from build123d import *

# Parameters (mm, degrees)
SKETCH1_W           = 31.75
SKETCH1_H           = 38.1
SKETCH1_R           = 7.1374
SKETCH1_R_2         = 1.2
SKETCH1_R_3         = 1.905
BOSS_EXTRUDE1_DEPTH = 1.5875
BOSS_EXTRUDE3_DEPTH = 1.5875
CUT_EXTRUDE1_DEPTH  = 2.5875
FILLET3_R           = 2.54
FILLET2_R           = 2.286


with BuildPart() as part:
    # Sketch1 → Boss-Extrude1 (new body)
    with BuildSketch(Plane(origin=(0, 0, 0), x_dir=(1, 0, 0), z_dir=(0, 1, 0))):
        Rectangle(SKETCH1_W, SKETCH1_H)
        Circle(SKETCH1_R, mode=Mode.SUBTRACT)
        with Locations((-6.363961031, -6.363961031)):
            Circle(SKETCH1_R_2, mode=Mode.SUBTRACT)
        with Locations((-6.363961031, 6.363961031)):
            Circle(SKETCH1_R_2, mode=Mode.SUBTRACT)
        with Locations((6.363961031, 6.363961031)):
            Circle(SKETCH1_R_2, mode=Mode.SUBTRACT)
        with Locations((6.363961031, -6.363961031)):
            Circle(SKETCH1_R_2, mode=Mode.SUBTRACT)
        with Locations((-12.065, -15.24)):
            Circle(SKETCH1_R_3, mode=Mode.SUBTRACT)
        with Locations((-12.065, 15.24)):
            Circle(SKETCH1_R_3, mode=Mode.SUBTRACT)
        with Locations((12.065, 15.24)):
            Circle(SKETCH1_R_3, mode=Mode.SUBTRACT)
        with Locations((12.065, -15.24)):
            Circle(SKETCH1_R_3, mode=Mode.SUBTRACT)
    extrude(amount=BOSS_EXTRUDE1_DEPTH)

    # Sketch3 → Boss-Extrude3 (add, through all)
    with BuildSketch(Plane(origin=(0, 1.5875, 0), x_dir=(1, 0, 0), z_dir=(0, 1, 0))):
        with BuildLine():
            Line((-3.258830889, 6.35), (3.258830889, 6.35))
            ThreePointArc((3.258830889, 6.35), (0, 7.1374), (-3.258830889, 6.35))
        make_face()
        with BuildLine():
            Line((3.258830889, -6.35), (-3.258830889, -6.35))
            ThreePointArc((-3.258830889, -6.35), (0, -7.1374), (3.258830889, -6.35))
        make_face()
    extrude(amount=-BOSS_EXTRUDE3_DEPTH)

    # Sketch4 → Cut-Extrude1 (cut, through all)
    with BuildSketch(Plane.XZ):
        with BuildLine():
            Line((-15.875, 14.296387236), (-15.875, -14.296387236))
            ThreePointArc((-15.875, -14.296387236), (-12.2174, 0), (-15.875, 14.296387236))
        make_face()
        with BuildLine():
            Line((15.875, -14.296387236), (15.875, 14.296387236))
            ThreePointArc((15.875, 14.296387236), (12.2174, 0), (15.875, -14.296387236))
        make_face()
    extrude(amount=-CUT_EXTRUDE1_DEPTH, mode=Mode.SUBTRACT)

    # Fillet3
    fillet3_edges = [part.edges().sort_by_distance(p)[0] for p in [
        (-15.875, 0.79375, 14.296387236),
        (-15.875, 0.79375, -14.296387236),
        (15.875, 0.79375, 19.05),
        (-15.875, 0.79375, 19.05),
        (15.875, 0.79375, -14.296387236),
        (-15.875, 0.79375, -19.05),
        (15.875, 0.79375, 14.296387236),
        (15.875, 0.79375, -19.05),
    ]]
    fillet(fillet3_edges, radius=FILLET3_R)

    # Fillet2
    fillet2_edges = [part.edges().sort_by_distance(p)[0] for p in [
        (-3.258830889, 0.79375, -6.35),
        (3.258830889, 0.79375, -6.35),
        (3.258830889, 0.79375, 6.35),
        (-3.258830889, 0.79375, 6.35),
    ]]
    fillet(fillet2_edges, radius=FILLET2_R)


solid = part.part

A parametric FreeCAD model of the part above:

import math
import FreeCAD as App
import Part
import Sketcher
from FreeCAD import Vector
Q = App.Units.Quantity


def edges_at(feature, points):
    """Names of the edges that pass closest to the given points."""
    edges = feature.Shape.Edges
    near = lambda p: min(range(len(edges)), key=lambda i: edges[i].distToShape(Part.Vertex(*p))[0])
    return sorted({f"Edge{near(p) + 1}" for p in points})


def add_polygon(sketch, points):
    """Adds a closed chain of lines whose ends are joined by coincident constraints."""
    first, n = sketch.GeometryCount, len(points)
    for a, b in zip(points, points[1:] + points[:1]):
        sketch.addGeometry(Part.LineSegment(App.Vector(*a, 0), App.Vector(*b, 0)), False)
    for i in range(n):
        sketch.addConstraint(Sketcher.Constraint("Coincident", first + i, 2, first + (i + 1) % n, 1))

doc = App.newDocument("Part")
params = doc.addObject("Spreadsheet::Sheet", "Params")
for row, (alias, value) in enumerate([
    ("sketch1_diameter", "0.15 in"),
    ("sketch1_diameter2", "0.562 in"),
    ("sketch1_height", "1.5 in"),
    ("sketch1_width", "1.25 in"),
    ("pad1_length", "0.0625 in"),
    ("sketch2_radius", "0.281 in"),
    ("pad2_length", "0.0625 in"),
    ("sketch3_radius", "1.172 in"),
    ("fillet_radius", "0.1 in"),
    ("fillet2_radius", "0.09 in"),
], start=1):
    params.set(f"A{row}", alias)
    params.set(f"B{row}", "=" + value)
    params.setAlias(f"B{row}", alias)

body = doc.addObject("PartDesign::Body", "Body")

sketch1 = body.newObject("Sketcher::SketchObject", "Sketch")
sketch1.AttachmentSupport = (doc.getObject("XZ_Plane"), [""])
sketch1.MapMode = "FlatFace"
add_polygon(sketch1, [(-15.9, -19.1), (-15.9, 19.1), (15.9, 19.1), (15.9, -19.1)])
sketch1.addGeometry(Part.Circle(Vector(-12.1, 15.2, 0), Vector(0, 0, 1), 1.9), False)
sketch1.addGeometry(Part.Circle(Vector(-6.4, 6.4, 0), Vector(0, 0, 1), 1.2), False)
sketch1.addGeometry(Part.Circle(Vector(12.1, 15.2, 0), Vector(0, 0, 1), 1.9), False)
sketch1.addGeometry(Part.Circle(Vector(6.4, 6.4, 0), Vector(0, 0, 1), 1.2), False)
sketch1.addGeometry(Part.Circle(Vector(-6.4, -6.4, 0), Vector(0, 0, 1), 1.2), False)
sketch1.addGeometry(Part.Circle(Vector(-12.1, -15.2, 0), Vector(0, 0, 1), 1.9), False)
sketch1.addGeometry(Part.Circle(Vector(0, 0, 0), Vector(0, 0, 1), 7.1), False)
sketch1.addGeometry(Part.Circle(Vector(6.4, -6.4, 0), Vector(0, 0, 1), 1.2), False)
sketch1.addGeometry(Part.Circle(Vector(12.1, -15.2, 0), Vector(0, 0, 1), 1.9), False)
sketch1.addConstraint([
    Sketcher.Constraint("Vertical", 0),
    Sketcher.Constraint("Horizontal", 1),
    Sketcher.Constraint("Vertical", 2),
    Sketcher.Constraint("Horizontal", 3),
    Sketcher.Constraint("Coincident", 10, 3, -1, 1),
    Sketcher.Constraint("Equal", 4, 6),
    Sketcher.Constraint("Equal", 5, 7),
    Sketcher.Constraint("Equal", 7, 8),
    Sketcher.Constraint("Equal", 6, 9),
    Sketcher.Constraint("Equal", 8, 11),
    Sketcher.Constraint("Equal", 9, 12),
    Sketcher.Constraint("Symmetric", 7, 3, 8, 3, -1, 1),
    Sketcher.Constraint("Symmetric", 6, 3, 9, 3, -1, 1),
    Sketcher.Constraint("Symmetric", 5, 3, 11, 3, -1, 1),
    Sketcher.Constraint("Symmetric", 4, 3, 12, 3, -1, 1),
    Sketcher.Constraint("Symmetric", 0, 2, 2, 2, -1, 1),
    Sketcher.Constraint("Symmetric", 4, 3, 6, 3, -2),
    Sketcher.Constraint("Symmetric", 5, 3, 7, 3, -2),
    Sketcher.Constraint("Diameter", 4, Q("0.15 in")),
    Sketcher.Constraint("Diameter", 10, Q("0.562 in")),
    Sketcher.Constraint("DistanceY", 0, 1, 0, 2, Q("1.5 in")),
    Sketcher.Constraint("DistanceX", 1, 1, 1, 2, Q("1.25 in")),
    Sketcher.Constraint("DistanceY", -1, 1, 4, 3, Q("0.6 in")),
    Sketcher.Constraint("Diameter", 5, Q("2.4 mm")),
    Sketcher.Constraint("DistanceX", 4, 3, 6, 3, Q("0.95 in")),
    Sketcher.Constraint("DistanceX", 5, 3, -1, 1, Q("6.363961 mm")),
    Sketcher.Constraint("DistanceY", -1, 1, 5, 3, Q("6.363961 mm")),
])
sketch1.setExpression("Constraints[22]", "Params.sketch1_diameter")
sketch1.setExpression("Constraints[23]", "Params.sketch1_diameter2")
sketch1.setExpression("Constraints[24]", "Params.sketch1_height")
sketch1.setExpression("Constraints[25]", "Params.sketch1_width")
pad1 = body.newObject("PartDesign::Pad", "Pad")
pad1.Profile = sketch1
pad1.setExpression("Length", "Params.pad1_length")
pad1.Reversed = True

sketch2 = body.newObject("Sketcher::SketchObject", "Sketch001")
sketch2.AttachmentSupport = (doc.getObject("XZ_Plane"), [""])
sketch2.MapMode = "FlatFace"
sketch2.AttachmentOffset = App.Placement(Vector(0, 0, -0.0625 * 25.4), App.Rotation())
sketch2.addGeometry([
    Part.LineSegment(Vector(-3, -6, 0), Vector(3, -6, 0)),
    Part.ArcOfCircle(Part.Circle(Vector(0, 0, 0), Vector(0, 0, 1), 7), math.radians(-117), math.radians(-63)),
    Part.LineSegment(Vector(3, 6, 0), Vector(-3, 6, 0)),
    Part.ArcOfCircle(Part.Circle(Vector(0, 0, 0), Vector(0, 0, 1), 7), math.radians(63), math.radians(117)),
], False)
sketch2.addConstraint([
    Sketcher.Constraint("Coincident", 0, 1, 1, 1),
    Sketcher.Constraint("Coincident", 1, 2, 0, 2),
    Sketcher.Constraint("Coincident", 2, 1, 3, 1),
    Sketcher.Constraint("Coincident", 3, 2, 2, 2),
    Sketcher.Constraint("Horizontal", 0),
    Sketcher.Constraint("Horizontal", 2),
    Sketcher.Constraint("Coincident", 1, 3, -1, 1),
    Sketcher.Constraint("Coincident", 3, 3, -1, 1),
    Sketcher.Constraint("Equal", 1, 3),
    Sketcher.Constraint("Vertical", 1, 2, 2, 1),
    Sketcher.Constraint("Radius", 1, Q("0.281 in")),
    Sketcher.Constraint("DistanceY", 1, 2, 2, 1, Q("0.5 in")),
])
sketch2.setExpression("Constraints[10]", "Params.sketch2_radius")
pad2 = body.newObject("PartDesign::Pad", "Pad001")
pad2.Profile = sketch2
pad2.setExpression("Length", "Params.pad2_length")

sketch3 = body.newObject("Sketcher::SketchObject", "Sketch002")
sketch3.AttachmentSupport = (doc.getObject("XZ_Plane"), [""])
sketch3.MapMode = "FlatFace"
sketch3.addGeometry([
    Part.LineSegment(Vector(-16, 14, 0), Vector(-16, -14, 0)),
    Part.ArcOfCircle(Part.Circle(Vector(-42, 0, 0), Vector(0, 0, 1), 30), math.radians(-29), math.radians(29)),
    Part.LineSegment(Vector(16, -14, 0), Vector(16, 14, 0)),
    Part.ArcOfCircle(Part.Circle(Vector(42, 0, 0), Vector(0, 0, 1), 30), math.radians(151), math.radians(209)),
], False)
sketch3.addConstraint([
    Sketcher.Constraint("Coincident", 0, 1, 1, 2),
    Sketcher.Constraint("Coincident", 1, 1, 0, 2),
    Sketcher.Constraint("Coincident", 2, 1, 3, 2),
    Sketcher.Constraint("Coincident", 3, 1, 2, 2),
    Sketcher.Constraint("Vertical", 0),
    Sketcher.Constraint("Vertical", 2),
    Sketcher.Constraint("Equal", 1, 3),
    Sketcher.Constraint("Symmetric", 1, 3, 3, 3, -1, 1),
    Sketcher.Constraint("Symmetric", 1, 1, 2, 1, -2),
    Sketcher.Constraint("Radius", 1, Q("1.172 in")),
    Sketcher.Constraint("DistanceX", 1, 1, 2, 1, Q("1.25 in")),
    Sketcher.Constraint("DistanceX", 1, 3, -1, 1, Q("1.653 in")),
])
sketch3.setExpression("Constraints[9]", "Params.sketch3_radius")
pocket1 = body.newObject("PartDesign::Pocket", "Pocket")
pocket1.Profile = sketch3
pocket1.Type = "ThroughAll"
doc.recompute()

fillet = body.newObject("PartDesign::Fillet", "Fillet")
fillet.Base = (pocket1, edges_at(pocket1, [
    (-15.875, 0.794, 14.296),
    (-15.875, 0.794, -14.296),
    (15.875, 0.794, 19.05),
    (-15.875, 0.794, 19.05),
    (15.875, 0.794, -14.296),
    (-15.875, 0.794, -19.05),
    (15.875, 0.794, 14.296),
    (15.875, 0.794, -19.05),
]))
fillet.setExpression("Radius", "Params.fillet_radius")
doc.recompute()

fillet2 = body.newObject("PartDesign::Fillet", "Fillet001")
fillet2.Base = (fillet, edges_at(fillet, [
    (-3.259, 0.794, -6.35),
    (3.259, 0.794, -6.35),
    (3.259, 0.794, 6.35),
    (-3.259, 0.794, 6.35),
]))
fillet2.setExpression("Radius", "Params.fillet2_radius")

doc.recompute()
